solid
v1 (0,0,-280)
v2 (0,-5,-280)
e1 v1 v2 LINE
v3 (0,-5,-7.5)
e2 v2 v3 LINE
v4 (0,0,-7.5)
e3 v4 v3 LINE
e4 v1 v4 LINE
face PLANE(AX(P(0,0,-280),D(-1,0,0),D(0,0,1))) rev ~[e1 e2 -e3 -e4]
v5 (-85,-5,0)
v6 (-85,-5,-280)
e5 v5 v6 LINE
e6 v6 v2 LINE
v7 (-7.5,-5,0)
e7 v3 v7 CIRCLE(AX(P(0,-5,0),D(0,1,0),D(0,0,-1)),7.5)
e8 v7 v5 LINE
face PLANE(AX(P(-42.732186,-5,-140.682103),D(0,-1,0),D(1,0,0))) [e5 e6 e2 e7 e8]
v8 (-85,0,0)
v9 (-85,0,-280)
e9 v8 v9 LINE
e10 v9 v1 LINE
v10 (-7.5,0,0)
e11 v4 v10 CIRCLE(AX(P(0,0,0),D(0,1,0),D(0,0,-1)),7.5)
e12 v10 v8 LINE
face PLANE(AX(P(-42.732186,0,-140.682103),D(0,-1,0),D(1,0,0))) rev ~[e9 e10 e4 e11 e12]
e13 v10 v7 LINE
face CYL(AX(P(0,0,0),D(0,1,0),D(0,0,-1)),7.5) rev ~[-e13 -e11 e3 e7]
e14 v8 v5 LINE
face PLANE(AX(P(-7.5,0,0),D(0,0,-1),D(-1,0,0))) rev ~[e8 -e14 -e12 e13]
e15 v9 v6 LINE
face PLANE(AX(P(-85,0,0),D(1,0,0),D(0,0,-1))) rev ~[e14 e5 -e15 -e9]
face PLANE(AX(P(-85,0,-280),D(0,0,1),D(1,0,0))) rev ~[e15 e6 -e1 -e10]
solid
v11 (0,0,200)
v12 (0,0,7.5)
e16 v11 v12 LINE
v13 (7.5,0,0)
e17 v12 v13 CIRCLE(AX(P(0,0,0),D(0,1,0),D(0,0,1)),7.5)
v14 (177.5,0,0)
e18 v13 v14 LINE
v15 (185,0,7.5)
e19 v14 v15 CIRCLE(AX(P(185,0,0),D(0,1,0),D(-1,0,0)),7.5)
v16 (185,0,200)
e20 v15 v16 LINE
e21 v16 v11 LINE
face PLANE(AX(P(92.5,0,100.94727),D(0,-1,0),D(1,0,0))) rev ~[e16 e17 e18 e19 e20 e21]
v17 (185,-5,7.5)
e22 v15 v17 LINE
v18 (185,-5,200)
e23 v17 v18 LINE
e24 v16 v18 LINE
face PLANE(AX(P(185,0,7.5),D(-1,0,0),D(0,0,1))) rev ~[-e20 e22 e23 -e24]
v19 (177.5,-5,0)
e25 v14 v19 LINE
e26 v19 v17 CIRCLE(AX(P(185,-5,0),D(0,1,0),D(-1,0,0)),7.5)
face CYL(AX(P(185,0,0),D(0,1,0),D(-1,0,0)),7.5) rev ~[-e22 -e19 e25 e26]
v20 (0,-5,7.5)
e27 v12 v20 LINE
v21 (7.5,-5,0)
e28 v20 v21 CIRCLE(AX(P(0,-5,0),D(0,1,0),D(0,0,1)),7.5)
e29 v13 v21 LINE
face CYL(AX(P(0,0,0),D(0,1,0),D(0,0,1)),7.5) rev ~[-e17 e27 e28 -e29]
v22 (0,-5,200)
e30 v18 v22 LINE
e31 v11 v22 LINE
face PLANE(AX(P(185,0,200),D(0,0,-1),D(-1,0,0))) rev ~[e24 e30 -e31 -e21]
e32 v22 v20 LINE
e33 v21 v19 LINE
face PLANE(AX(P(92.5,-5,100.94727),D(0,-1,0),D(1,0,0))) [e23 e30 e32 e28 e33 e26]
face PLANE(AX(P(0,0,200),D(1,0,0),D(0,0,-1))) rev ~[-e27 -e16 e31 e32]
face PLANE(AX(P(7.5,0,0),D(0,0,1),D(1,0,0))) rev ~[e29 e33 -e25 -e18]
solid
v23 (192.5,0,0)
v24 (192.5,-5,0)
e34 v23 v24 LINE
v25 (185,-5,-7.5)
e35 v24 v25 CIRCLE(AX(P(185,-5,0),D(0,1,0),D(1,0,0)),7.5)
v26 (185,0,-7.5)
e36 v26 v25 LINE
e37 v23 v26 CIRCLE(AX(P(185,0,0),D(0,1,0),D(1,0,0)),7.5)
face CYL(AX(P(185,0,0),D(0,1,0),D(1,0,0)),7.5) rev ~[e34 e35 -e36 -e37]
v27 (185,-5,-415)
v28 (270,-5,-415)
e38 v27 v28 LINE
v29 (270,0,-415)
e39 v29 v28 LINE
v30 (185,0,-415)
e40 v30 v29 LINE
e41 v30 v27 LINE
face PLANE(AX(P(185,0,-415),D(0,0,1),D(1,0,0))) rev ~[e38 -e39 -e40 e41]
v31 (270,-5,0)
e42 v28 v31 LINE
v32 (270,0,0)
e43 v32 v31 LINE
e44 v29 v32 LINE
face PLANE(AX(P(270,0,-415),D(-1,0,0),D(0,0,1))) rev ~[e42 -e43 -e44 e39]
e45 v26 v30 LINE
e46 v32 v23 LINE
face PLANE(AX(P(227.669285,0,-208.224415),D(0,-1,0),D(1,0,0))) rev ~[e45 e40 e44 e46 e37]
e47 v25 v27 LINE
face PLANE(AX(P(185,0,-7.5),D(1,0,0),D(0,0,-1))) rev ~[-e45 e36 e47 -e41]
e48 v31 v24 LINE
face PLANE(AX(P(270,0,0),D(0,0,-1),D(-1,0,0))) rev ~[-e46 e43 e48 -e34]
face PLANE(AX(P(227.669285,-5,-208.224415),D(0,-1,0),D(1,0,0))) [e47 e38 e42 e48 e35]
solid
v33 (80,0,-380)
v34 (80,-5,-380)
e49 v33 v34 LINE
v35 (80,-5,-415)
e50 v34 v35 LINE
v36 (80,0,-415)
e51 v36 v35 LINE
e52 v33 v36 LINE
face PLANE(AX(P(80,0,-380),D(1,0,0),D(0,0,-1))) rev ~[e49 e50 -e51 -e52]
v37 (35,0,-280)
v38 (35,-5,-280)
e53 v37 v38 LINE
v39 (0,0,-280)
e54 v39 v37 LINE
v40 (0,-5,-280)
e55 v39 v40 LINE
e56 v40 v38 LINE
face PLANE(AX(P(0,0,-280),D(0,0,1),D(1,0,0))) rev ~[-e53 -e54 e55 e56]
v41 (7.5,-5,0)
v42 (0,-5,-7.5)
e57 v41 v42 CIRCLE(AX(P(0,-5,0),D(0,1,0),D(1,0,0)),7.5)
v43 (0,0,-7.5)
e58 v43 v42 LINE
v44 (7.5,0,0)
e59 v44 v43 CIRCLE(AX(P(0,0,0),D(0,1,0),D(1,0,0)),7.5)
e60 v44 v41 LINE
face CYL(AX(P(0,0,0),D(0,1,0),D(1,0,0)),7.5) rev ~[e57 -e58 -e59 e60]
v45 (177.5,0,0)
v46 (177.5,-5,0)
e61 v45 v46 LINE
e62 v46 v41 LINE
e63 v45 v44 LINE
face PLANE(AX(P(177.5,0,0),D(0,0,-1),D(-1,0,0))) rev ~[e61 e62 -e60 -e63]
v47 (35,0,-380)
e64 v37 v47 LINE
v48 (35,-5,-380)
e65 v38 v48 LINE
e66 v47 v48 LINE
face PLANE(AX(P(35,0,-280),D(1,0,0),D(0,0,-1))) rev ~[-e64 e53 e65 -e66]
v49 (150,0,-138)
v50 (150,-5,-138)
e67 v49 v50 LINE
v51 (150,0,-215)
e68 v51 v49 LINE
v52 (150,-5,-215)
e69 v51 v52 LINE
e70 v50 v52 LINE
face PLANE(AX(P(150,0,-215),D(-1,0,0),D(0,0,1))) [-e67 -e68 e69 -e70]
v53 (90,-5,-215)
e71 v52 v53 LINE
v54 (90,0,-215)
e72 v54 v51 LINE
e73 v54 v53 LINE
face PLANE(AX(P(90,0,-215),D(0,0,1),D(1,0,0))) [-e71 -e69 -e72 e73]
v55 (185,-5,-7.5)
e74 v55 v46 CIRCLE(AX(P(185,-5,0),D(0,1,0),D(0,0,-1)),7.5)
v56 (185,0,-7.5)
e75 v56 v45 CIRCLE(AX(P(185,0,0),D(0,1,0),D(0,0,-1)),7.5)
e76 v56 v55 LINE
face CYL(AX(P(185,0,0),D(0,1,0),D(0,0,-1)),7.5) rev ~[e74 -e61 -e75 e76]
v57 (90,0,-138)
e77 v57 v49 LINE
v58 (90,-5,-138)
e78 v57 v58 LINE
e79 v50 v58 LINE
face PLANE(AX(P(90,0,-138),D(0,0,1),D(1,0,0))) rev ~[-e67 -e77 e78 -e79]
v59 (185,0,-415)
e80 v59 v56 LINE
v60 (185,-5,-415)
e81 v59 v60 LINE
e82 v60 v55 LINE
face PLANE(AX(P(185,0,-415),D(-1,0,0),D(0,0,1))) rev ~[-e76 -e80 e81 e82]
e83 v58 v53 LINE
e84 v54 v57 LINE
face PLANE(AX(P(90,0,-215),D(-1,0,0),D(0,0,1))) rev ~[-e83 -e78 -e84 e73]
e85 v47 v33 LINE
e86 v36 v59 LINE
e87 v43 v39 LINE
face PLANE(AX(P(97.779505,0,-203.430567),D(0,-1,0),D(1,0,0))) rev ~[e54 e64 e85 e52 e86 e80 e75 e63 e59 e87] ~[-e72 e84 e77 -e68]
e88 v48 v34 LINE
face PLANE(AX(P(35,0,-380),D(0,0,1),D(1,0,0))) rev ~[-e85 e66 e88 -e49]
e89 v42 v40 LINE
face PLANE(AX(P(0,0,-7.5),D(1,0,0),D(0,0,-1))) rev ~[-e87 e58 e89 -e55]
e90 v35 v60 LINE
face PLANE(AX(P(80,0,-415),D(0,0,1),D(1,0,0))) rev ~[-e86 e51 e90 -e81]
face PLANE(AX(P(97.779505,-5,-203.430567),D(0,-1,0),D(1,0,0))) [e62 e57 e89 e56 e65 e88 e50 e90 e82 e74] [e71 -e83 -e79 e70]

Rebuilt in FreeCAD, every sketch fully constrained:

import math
import FreeCAD as App
import Part
import Sketcher
Q = App.Units.Quantity


def add_polygon(sketch, points):
    """Adds a closed chain of lines whose ends are joined by coincident constraints."""
    first, n = sketch.GeometryCount, len(points)
    for a, b in zip(points, points[1:] + points[:1]):
        sketch.addGeometry(Part.LineSegment(App.Vector(*a, 0), App.Vector(*b, 0)), False)
    for i in range(n):
        sketch.addConstraint(Sketcher.Constraint("Coincident", first + i, 2, first + (i + 1) % n, 1))

doc = App.newDocument("Part")
body = doc.addObject("PartDesign::Body", "Body")

# Sketch on XZ plane
sketch1 = body.newObject("Sketcher::SketchObject", "Sketch")
sketch1.AttachmentSupport = (doc.getObject("XZ_Plane"), [""])
sketch1.MapMode = "FlatFace"
sketch1.addGeometry(Part.LineSegment(App.Vector(178, 0, 0), App.Vector(8, 0, 0)), False)
sketch1.addGeometry(Part.ArcOfCircle(Part.Circle(App.Vector(0, 0, 0), App.Vector(0, 0, 1), 8), math.radians(-90), math.radians(0)), False)
sketch1.addGeometry(Part.LineSegment(App.Vector(0, -8, 0), App.Vector(0, -280, 0)), False)
sketch1.addGeometry(Part.LineSegment(App.Vector(0, -280, 0), App.Vector(35, -280, 0)), False)
sketch1.addGeometry(Part.LineSegment(App.Vector(35, -280, 0), App.Vector(35, -380, 0)), False)
sketch1.addGeometry(Part.LineSegment(App.Vector(35, -380, 0), App.Vector(80, -380, 0)), False)
sketch1.addGeometry(Part.LineSegment(App.Vector(80, -380, 0), App.Vector(80, -415, 0)), False)
sketch1.addGeometry(Part.LineSegment(App.Vector(80, -415, 0), App.Vector(185, -415, 0)), False)
sketch1.addGeometry(Part.LineSegment(App.Vector(185, -415, 0), App.Vector(185, -8, 0)), False)
sketch1.addGeometry(Part.ArcOfCircle(Part.Circle(App.Vector(185, 0, 0), App.Vector(0, 0, 1), 8), math.radians(180), math.radians(270)), False)
sketch1.addConstraint(Sketcher.Constraint("Coincident", 0, 2, 1, 2))
sketch1.addConstraint(Sketcher.Constraint("Coincident", 1, 1, 2, 1))
sketch1.addConstraint(Sketcher.Constraint("Coincident", 2, 2, 3, 1))
sketch1.addConstraint(Sketcher.Constraint("Coincident", 3, 2, 4, 1))
sketch1.addConstraint(Sketcher.Constraint("Coincident", 4, 2, 5, 1))
sketch1.addConstraint(Sketcher.Constraint("Coincident", 5, 2, 6, 1))
sketch1.addConstraint(Sketcher.Constraint("Coincident", 6, 2, 7, 1))
sketch1.addConstraint(Sketcher.Constraint("Coincident", 7, 2, 8, 1))
sketch1.addConstraint(Sketcher.Constraint("Coincident", 8, 2, 9, 2))
sketch1.addConstraint(Sketcher.Constraint("Coincident", 9, 1, 0, 1))
sketch1.addConstraint(Sketcher.Constraint("Horizontal", 0))
sketch1.addConstraint(Sketcher.Constraint("Vertical", 2))
sketch1.addConstraint(Sketcher.Constraint("Horizontal", 3))
sketch1.addConstraint(Sketcher.Constraint("Vertical", 4))
sketch1.addConstraint(Sketcher.Constraint("Horizontal", 5))
sketch1.addConstraint(Sketcher.Constraint("Vertical", 6))
sketch1.addConstraint(Sketcher.Constraint("Horizontal", 7))
sketch1.addConstraint(Sketcher.Constraint("Vertical", 8))
sketch1.addConstraint(Sketcher.Constraint("Coincident", 1, 3, -1, 1))
sketch1.addConstraint(Sketcher.Constraint("Equal", 1, 9))
sketch1.addConstraint(Sketcher.Constraint("PointOnObject", 9, 3, -1))
sketch1.addConstraint(Sketcher.Constraint("PointOnObject", 0, 2, -1))
sketch1.addConstraint(Sketcher.Constraint("PointOnObject", 1, 1, -2))
sketch1.addConstraint(Sketcher.Constraint("Vertical", 9, 3, 7, 2))
sketch1.addConstraint(Sketcher.Constraint("Equal", 3, 6))
sketch1.addConstraint(Sketcher.Constraint("Radius", 1, Q("7.5 mm")))
sketch1.addConstraint(Sketcher.Constraint("DistanceX", 0, 2, 0, 1, Q("170 mm")))
sketch1.addConstraint(Sketcher.Constraint("DistanceX", 3, 1, 3, 2, Q("35 mm")))
sketch1.addConstraint(Sketcher.Constraint("DistanceX", 5, 1, 5, 2, Q("45 mm")))
sketch1.addConstraint(Sketcher.Constraint("DistanceY", 4, 2, 4, 1, Q("100 mm")))
sketch1.addConstraint(Sketcher.Constraint("DistanceY", 2, 2, 2, 1, Q("272.5 mm")))
pad1 = body.newObject("PartDesign::Pad", "Pad")
pad1.Profile = sketch1
pad1.Length = 5

# Sketch on XZ plane
sketch2 = body.newObject("Sketcher::SketchObject", "Sketch001")
sketch2.AttachmentSupport = (doc.getObject("XZ_Plane"), [""])
sketch2.MapMode = "FlatFace"
add_polygon(sketch2, [(90, -138), (90, -215), (150, -215), (150, -138)])  # lines 0-3
sketch2.addConstraint(Sketcher.Constraint("Vertical", 0))
sketch2.addConstraint(Sketcher.Constraint("Horizontal", 1))
sketch2.addConstraint(Sketcher.Constraint("Vertical", 2))
sketch2.addConstraint(Sketcher.Constraint("Horizontal", 3))
sketch2.addConstraint(Sketcher.Constraint("DistanceX", 1, 1, 1, 2, Q("60 mm")))
sketch2.addConstraint(Sketcher.Constraint("DistanceY", 0, 2, 0, 1, Q("77 mm")))
sketch2.addConstraint(Sketcher.Constraint("DistanceX", -1, 1, 0, 2, Q("90 mm")))
sketch2.addConstraint(Sketcher.Constraint("DistanceY", 0, 2, -1, 1, Q("215 mm")))
pocket1 = body.newObject("PartDesign::Pocket", "Pocket")
pocket1.Profile = sketch2
pocket1.Type = "ThroughAll"
pocket1.Midplane = True
body2 = doc.addObject("PartDesign::Body", "Body001")

# Sketch on XZ plane
sketch3 = body2.newObject("Sketcher::SketchObject", "Sketch002")
sketch3.AttachmentSupport = (doc.getObject("XZ_Plane001"), [""])
sketch3.MapMode = "FlatFace"
sketch3.addGeometry(Part.ArcOfCircle(Part.Circle(App.Vector(0, 0, 0), App.Vector(0, 0, 1), 8), math.radians(180), math.radians(270)), False)
sketch3.addGeometry(Part.LineSegment(App.Vector(-8, 0, 0), App.Vector(-85, 0, 0)), False)
sketch3.addGeometry(Part.LineSegment(App.Vector(-85, 0, 0), App.Vector(-85, -280, 0)), False)
sketch3.addGeometry(Part.LineSegment(App.Vector(-85, -280, 0), App.Vector(0, -280, 0)), False)
sketch3.addGeometry(Part.LineSegment(App.Vector(0, -280, 0), App.Vector(0, -8, 0)), False)
sketch3.addConstraint(Sketcher.Constraint("Coincident", 0, 1, 1, 1))
sketch3.addConstraint(Sketcher.Constraint("Coincident", 1, 2, 2, 1))
sketch3.addConstraint(Sketcher.Constraint("Coincident", 2, 2, 3, 1))
sketch3.addConstraint(Sketcher.Constraint("Coincident", 3, 2, 4, 1))
sketch3.addConstraint(Sketcher.Constraint("Coincident", 4, 2, 0, 2))
sketch3.addConstraint(Sketcher.Constraint("Horizontal", 1))
sketch3.addConstraint(Sketcher.Constraint("Vertical", 2))
sketch3.addConstraint(Sketcher.Constraint("Horizontal", 3))
sketch3.addConstraint(Sketcher.Constraint("Vertical", 4))
sketch3.addConstraint(Sketcher.Constraint("Coincident", 0, 3, -1, 1))
sketch3.addConstraint(Sketcher.Constraint("PointOnObject", 0, 1, -1))
sketch3.addConstraint(Sketcher.Constraint("PointOnObject", 3, 2, -2))
sketch3.addConstraint(Sketcher.Constraint("Radius", 0, Q("7.5 mm")))
sketch3.addConstraint(Sketcher.Constraint("DistanceX", 3, 1, 3, 2, Q("85 mm")))
sketch3.addConstraint(Sketcher.Constraint("DistanceY", 2, 2, 2, 1, Q("280 mm")))
pad2 = body2.newObject("PartDesign::Pad", "Pad001")
pad2.Profile = sketch3
pad2.Length = 5
body3 = doc.addObject("PartDesign::Body", "Body002")

# Sketch on XZ plane
sketch4 = body3.newObject("Sketcher::SketchObject", "Sketch003")
sketch4.AttachmentSupport = (doc.getObject("XZ_Plane002"), [""])
sketch4.MapMode = "FlatFace"
sketch4.addGeometry(Part.ArcOfCircle(Part.Circle(App.Vector(185, 0, 0), App.Vector(0, 0, 1), 8), math.radians(-90), math.radians(0)), False)
sketch4.addGeometry(Part.LineSegment(App.Vector(185, -8, 0), App.Vector(185, -415, 0)), False)
sketch4.addGeometry(Part.LineSegment(App.Vector(185, -415, 0), App.Vector(270, -415, 0)), False)
sketch4.addGeometry(Part.LineSegment(App.Vector(270, -415, 0), App.Vector(270, 0, 0)), False)
sketch4.addGeometry(Part.LineSegment(App.Vector(270, 0, 0), App.Vector(192, 0, 0)), False)
sketch4.addConstraint(Sketcher.Constraint("Coincident", 0, 1, 1, 1))
sketch4.addConstraint(Sketcher.Constraint("Coincident", 1, 2, 2, 1))
sketch4.addConstraint(Sketcher.Constraint("Coincident", 2, 2, 3, 1))
sketch4.addConstraint(Sketcher.Constraint("Coincident", 3, 2, 4, 1))
sketch4.addConstraint(Sketcher.Constraint("Coincident", 4, 2, 0, 2))
sketch4.addConstraint(Sketcher.Constraint("Vertical", 1))
sketch4.addConstraint(Sketcher.Constraint("Horizontal", 2))
sketch4.addConstraint(Sketcher.Constraint("Vertical", 3))
sketch4.addConstraint(Sketcher.Constraint("Horizontal", 4))
sketch4.addConstraint(Sketcher.Constraint("PointOnObject", 0, 3, -1))
sketch4.addConstraint(Sketcher.Constraint("PointOnObject", 3, 2, -1))
sketch4.addConstraint(Sketcher.Constraint("Radius", 0, Q("7.5 mm")))
sketch4.addConstraint(Sketcher.Constraint("DistanceX", 2, 1, 2, 2, Q("85 mm")))
sketch4.addConstraint(Sketcher.Constraint("DistanceY", 3, 1, 3, 2, Q("415 mm")))
sketch4.addConstraint(Sketcher.Constraint("DistanceX", 4, 2, 4, 1, Q("77.5 mm")))
sketch4.addConstraint(Sketcher.Constraint("DistanceX", -1, 1, 0, 3, Q("185 mm")))
pad3 = body3.newObject("PartDesign::Pad", "Pad002")
pad3.Profile = sketch4
pad3.Length = 5
body4 = doc.addObject("PartDesign::Body", "Body003")

# Sketch on XZ plane
sketch5 = body4.newObject("Sketcher::SketchObject", "Sketch004")
sketch5.AttachmentSupport = (doc.getObject("XZ_Plane003"), [""])
sketch5.MapMode = "FlatFace"
sketch5.addGeometry(Part.ArcOfCircle(Part.Circle(App.Vector(0, 0, 0), App.Vector(0, 0, 1), 8), math.radians(0), math.radians(90)), False)
sketch5.addGeometry(Part.LineSegment(App.Vector(8, 0, 0), App.Vector(178, 0, 0)), False)
sketch5.addGeometry(Part.ArcOfCircle(Part.Circle(App.Vector(185, 0, 0), App.Vector(0, 0, 1), 8), math.radians(90), math.radians(180)), False)
sketch5.addGeometry(Part.LineSegment(App.Vector(185, 8, 0), App.Vector(185, 200, 0)), False)
sketch5.addGeometry(Part.LineSegment(App.Vector(185, 200, 0), App.Vector(0, 200, 0)), False)
sketch5.addGeometry(Part.LineSegment(App.Vector(0, 200, 0), App.Vector(0, 8, 0)), False)
sketch5.addConstraint(Sketcher.Constraint("Coincident", 0, 1, 1, 1))
sketch5.addConstraint(Sketcher.Constraint("Coincident", 1, 2, 2, 2))
sketch5.addConstraint(Sketcher.Constraint("Coincident", 2, 1, 3, 1))
sketch5.addConstraint(Sketcher.Constraint("Coincident", 3, 2, 4, 1))
sketch5.addConstraint(Sketcher.Constraint("Coincident", 4, 2, 5, 1))
sketch5.addConstraint(Sketcher.Constraint("Coincident", 5, 2, 0, 2))
sketch5.addConstraint(Sketcher.Constraint("Horizontal", 1))
sketch5.addConstraint(Sketcher.Constraint("Vertical", 3))
sketch5.addConstraint(Sketcher.Constraint("Horizontal", 4))
sketch5.addConstraint(Sketcher.Constraint("Vertical", 5))
sketch5.addConstraint(Sketcher.Constraint("Coincident", 0, 3, -1, 1))
sketch5.addConstraint(Sketcher.Constraint("Equal", 0, 2))
sketch5.addConstraint(Sketcher.Constraint("PointOnObject", 2, 3, -1))
sketch5.addConstraint(Sketcher.Constraint("PointOnObject", 0, 1, -1))
sketch5.addConstraint(Sketcher.Constraint("PointOnObject", 4, 2, -2))
sketch5.addConstraint(Sketcher.Constraint("Radius", 0, Q("7.5 mm")))
sketch5.addConstraint(Sketcher.Constraint("DistanceX", 1, 1, 1, 2, Q("170 mm")))
sketch5.addConstraint(Sketcher.Constraint("DistanceX", 4, 2, 4, 1, Q("185 mm")))
sketch5.addConstraint(Sketcher.Constraint("DistanceY", 3, 1, 3, 2, Q("192.5 mm")))
pad4 = body4.newObject("PartDesign::Pad", "Pad003")
pad4.Profile = sketch5
pad4.Length = 5

doc.recompute()
